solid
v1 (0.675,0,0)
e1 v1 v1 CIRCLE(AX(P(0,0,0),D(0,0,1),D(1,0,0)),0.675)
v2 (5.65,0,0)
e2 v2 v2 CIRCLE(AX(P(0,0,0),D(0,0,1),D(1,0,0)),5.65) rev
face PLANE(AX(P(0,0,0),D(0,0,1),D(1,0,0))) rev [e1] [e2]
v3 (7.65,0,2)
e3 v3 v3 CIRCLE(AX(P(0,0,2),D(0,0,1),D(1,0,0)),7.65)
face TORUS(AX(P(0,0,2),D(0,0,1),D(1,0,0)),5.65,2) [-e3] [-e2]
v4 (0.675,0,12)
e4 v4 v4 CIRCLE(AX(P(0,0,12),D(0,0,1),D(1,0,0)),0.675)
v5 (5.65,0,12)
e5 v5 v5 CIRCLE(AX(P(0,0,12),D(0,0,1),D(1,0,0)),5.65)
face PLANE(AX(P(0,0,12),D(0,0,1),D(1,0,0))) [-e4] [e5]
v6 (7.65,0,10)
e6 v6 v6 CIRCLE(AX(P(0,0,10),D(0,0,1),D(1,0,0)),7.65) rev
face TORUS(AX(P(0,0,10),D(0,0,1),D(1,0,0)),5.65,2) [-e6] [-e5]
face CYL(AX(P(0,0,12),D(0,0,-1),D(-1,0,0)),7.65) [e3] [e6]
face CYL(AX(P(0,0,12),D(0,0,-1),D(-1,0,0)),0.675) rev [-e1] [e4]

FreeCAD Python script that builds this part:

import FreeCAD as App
import Part
import Sketcher
from FreeCAD import Vector
Q = App.Units.Quantity


def edges_at(feature, points):
    """Names of the edges that pass closest to the given points."""
    edges = feature.Shape.Edges
    near = lambda p: min(range(len(edges)), key=lambda i: edges[i].distToShape(Part.Vertex(*p))[0])
    return sorted({f"Edge{near(p) + 1}" for p in points})

doc = App.newDocument("Part")
params = doc.addObject("Spreadsheet::Sheet", "Params")
for row, (alias, value) in enumerate([
    ("sketch1_diameter", "15.3 mm"),
    ("sketch1_diameter2", "1.35 mm"),
    ("pad1_length", "12 mm"),
    ("fillet_radius", "2 mm"),
], start=1):
    params.set(f"A{row}", alias)
    params.set(f"B{row}", "=" + value)
    params.setAlias(f"B{row}", alias)

body = doc.addObject("PartDesign::Body", "Body")

# Sketch on XY plane
sketch1 = body.newObject("Sketcher::SketchObject", "Sketch")
sketch1.AttachmentSupport = (doc.getObject("XY_Plane"), [""])
sketch1.MapMode = "FlatFace"
sketch1.addGeometry([
    Part.Circle(Vector(0, 0, 0), Vector(0, 0, 1), 7.7),
    Part.Circle(Vector(0, 0, 0), Vector(0, 0, 1), 0.7),
], False)
sketch1.addConstraint([
    Sketcher.Constraint("Coincident", 0, 3, -1, 1),
    Sketcher.Constraint("Coincident", 1, 3, -1, 1),
    Sketcher.Constraint("Diameter", 0, Q("15.3 mm")),
    Sketcher.Constraint("Diameter", 1, Q("1.35 mm")),
])
sketch1.setExpression("Constraints[2]", "Params.sketch1_diameter")
sketch1.setExpression("Constraints[3]", "Params.sketch1_diameter2")
pad1 = body.newObject("PartDesign::Pad", "Pad")
pad1.Profile = sketch1
pad1.setExpression("Length", "Params.pad1_length")
doc.recompute()

fillet = body.newObject("PartDesign::Fillet", "Fillet")
fillet.Base = (pad1, edges_at(pad1, [(-7.65, 0, 0), (-7.65, 0, 12)]))
fillet.setExpression("Radius", "Params.fillet_radius")

doc.recompute()
